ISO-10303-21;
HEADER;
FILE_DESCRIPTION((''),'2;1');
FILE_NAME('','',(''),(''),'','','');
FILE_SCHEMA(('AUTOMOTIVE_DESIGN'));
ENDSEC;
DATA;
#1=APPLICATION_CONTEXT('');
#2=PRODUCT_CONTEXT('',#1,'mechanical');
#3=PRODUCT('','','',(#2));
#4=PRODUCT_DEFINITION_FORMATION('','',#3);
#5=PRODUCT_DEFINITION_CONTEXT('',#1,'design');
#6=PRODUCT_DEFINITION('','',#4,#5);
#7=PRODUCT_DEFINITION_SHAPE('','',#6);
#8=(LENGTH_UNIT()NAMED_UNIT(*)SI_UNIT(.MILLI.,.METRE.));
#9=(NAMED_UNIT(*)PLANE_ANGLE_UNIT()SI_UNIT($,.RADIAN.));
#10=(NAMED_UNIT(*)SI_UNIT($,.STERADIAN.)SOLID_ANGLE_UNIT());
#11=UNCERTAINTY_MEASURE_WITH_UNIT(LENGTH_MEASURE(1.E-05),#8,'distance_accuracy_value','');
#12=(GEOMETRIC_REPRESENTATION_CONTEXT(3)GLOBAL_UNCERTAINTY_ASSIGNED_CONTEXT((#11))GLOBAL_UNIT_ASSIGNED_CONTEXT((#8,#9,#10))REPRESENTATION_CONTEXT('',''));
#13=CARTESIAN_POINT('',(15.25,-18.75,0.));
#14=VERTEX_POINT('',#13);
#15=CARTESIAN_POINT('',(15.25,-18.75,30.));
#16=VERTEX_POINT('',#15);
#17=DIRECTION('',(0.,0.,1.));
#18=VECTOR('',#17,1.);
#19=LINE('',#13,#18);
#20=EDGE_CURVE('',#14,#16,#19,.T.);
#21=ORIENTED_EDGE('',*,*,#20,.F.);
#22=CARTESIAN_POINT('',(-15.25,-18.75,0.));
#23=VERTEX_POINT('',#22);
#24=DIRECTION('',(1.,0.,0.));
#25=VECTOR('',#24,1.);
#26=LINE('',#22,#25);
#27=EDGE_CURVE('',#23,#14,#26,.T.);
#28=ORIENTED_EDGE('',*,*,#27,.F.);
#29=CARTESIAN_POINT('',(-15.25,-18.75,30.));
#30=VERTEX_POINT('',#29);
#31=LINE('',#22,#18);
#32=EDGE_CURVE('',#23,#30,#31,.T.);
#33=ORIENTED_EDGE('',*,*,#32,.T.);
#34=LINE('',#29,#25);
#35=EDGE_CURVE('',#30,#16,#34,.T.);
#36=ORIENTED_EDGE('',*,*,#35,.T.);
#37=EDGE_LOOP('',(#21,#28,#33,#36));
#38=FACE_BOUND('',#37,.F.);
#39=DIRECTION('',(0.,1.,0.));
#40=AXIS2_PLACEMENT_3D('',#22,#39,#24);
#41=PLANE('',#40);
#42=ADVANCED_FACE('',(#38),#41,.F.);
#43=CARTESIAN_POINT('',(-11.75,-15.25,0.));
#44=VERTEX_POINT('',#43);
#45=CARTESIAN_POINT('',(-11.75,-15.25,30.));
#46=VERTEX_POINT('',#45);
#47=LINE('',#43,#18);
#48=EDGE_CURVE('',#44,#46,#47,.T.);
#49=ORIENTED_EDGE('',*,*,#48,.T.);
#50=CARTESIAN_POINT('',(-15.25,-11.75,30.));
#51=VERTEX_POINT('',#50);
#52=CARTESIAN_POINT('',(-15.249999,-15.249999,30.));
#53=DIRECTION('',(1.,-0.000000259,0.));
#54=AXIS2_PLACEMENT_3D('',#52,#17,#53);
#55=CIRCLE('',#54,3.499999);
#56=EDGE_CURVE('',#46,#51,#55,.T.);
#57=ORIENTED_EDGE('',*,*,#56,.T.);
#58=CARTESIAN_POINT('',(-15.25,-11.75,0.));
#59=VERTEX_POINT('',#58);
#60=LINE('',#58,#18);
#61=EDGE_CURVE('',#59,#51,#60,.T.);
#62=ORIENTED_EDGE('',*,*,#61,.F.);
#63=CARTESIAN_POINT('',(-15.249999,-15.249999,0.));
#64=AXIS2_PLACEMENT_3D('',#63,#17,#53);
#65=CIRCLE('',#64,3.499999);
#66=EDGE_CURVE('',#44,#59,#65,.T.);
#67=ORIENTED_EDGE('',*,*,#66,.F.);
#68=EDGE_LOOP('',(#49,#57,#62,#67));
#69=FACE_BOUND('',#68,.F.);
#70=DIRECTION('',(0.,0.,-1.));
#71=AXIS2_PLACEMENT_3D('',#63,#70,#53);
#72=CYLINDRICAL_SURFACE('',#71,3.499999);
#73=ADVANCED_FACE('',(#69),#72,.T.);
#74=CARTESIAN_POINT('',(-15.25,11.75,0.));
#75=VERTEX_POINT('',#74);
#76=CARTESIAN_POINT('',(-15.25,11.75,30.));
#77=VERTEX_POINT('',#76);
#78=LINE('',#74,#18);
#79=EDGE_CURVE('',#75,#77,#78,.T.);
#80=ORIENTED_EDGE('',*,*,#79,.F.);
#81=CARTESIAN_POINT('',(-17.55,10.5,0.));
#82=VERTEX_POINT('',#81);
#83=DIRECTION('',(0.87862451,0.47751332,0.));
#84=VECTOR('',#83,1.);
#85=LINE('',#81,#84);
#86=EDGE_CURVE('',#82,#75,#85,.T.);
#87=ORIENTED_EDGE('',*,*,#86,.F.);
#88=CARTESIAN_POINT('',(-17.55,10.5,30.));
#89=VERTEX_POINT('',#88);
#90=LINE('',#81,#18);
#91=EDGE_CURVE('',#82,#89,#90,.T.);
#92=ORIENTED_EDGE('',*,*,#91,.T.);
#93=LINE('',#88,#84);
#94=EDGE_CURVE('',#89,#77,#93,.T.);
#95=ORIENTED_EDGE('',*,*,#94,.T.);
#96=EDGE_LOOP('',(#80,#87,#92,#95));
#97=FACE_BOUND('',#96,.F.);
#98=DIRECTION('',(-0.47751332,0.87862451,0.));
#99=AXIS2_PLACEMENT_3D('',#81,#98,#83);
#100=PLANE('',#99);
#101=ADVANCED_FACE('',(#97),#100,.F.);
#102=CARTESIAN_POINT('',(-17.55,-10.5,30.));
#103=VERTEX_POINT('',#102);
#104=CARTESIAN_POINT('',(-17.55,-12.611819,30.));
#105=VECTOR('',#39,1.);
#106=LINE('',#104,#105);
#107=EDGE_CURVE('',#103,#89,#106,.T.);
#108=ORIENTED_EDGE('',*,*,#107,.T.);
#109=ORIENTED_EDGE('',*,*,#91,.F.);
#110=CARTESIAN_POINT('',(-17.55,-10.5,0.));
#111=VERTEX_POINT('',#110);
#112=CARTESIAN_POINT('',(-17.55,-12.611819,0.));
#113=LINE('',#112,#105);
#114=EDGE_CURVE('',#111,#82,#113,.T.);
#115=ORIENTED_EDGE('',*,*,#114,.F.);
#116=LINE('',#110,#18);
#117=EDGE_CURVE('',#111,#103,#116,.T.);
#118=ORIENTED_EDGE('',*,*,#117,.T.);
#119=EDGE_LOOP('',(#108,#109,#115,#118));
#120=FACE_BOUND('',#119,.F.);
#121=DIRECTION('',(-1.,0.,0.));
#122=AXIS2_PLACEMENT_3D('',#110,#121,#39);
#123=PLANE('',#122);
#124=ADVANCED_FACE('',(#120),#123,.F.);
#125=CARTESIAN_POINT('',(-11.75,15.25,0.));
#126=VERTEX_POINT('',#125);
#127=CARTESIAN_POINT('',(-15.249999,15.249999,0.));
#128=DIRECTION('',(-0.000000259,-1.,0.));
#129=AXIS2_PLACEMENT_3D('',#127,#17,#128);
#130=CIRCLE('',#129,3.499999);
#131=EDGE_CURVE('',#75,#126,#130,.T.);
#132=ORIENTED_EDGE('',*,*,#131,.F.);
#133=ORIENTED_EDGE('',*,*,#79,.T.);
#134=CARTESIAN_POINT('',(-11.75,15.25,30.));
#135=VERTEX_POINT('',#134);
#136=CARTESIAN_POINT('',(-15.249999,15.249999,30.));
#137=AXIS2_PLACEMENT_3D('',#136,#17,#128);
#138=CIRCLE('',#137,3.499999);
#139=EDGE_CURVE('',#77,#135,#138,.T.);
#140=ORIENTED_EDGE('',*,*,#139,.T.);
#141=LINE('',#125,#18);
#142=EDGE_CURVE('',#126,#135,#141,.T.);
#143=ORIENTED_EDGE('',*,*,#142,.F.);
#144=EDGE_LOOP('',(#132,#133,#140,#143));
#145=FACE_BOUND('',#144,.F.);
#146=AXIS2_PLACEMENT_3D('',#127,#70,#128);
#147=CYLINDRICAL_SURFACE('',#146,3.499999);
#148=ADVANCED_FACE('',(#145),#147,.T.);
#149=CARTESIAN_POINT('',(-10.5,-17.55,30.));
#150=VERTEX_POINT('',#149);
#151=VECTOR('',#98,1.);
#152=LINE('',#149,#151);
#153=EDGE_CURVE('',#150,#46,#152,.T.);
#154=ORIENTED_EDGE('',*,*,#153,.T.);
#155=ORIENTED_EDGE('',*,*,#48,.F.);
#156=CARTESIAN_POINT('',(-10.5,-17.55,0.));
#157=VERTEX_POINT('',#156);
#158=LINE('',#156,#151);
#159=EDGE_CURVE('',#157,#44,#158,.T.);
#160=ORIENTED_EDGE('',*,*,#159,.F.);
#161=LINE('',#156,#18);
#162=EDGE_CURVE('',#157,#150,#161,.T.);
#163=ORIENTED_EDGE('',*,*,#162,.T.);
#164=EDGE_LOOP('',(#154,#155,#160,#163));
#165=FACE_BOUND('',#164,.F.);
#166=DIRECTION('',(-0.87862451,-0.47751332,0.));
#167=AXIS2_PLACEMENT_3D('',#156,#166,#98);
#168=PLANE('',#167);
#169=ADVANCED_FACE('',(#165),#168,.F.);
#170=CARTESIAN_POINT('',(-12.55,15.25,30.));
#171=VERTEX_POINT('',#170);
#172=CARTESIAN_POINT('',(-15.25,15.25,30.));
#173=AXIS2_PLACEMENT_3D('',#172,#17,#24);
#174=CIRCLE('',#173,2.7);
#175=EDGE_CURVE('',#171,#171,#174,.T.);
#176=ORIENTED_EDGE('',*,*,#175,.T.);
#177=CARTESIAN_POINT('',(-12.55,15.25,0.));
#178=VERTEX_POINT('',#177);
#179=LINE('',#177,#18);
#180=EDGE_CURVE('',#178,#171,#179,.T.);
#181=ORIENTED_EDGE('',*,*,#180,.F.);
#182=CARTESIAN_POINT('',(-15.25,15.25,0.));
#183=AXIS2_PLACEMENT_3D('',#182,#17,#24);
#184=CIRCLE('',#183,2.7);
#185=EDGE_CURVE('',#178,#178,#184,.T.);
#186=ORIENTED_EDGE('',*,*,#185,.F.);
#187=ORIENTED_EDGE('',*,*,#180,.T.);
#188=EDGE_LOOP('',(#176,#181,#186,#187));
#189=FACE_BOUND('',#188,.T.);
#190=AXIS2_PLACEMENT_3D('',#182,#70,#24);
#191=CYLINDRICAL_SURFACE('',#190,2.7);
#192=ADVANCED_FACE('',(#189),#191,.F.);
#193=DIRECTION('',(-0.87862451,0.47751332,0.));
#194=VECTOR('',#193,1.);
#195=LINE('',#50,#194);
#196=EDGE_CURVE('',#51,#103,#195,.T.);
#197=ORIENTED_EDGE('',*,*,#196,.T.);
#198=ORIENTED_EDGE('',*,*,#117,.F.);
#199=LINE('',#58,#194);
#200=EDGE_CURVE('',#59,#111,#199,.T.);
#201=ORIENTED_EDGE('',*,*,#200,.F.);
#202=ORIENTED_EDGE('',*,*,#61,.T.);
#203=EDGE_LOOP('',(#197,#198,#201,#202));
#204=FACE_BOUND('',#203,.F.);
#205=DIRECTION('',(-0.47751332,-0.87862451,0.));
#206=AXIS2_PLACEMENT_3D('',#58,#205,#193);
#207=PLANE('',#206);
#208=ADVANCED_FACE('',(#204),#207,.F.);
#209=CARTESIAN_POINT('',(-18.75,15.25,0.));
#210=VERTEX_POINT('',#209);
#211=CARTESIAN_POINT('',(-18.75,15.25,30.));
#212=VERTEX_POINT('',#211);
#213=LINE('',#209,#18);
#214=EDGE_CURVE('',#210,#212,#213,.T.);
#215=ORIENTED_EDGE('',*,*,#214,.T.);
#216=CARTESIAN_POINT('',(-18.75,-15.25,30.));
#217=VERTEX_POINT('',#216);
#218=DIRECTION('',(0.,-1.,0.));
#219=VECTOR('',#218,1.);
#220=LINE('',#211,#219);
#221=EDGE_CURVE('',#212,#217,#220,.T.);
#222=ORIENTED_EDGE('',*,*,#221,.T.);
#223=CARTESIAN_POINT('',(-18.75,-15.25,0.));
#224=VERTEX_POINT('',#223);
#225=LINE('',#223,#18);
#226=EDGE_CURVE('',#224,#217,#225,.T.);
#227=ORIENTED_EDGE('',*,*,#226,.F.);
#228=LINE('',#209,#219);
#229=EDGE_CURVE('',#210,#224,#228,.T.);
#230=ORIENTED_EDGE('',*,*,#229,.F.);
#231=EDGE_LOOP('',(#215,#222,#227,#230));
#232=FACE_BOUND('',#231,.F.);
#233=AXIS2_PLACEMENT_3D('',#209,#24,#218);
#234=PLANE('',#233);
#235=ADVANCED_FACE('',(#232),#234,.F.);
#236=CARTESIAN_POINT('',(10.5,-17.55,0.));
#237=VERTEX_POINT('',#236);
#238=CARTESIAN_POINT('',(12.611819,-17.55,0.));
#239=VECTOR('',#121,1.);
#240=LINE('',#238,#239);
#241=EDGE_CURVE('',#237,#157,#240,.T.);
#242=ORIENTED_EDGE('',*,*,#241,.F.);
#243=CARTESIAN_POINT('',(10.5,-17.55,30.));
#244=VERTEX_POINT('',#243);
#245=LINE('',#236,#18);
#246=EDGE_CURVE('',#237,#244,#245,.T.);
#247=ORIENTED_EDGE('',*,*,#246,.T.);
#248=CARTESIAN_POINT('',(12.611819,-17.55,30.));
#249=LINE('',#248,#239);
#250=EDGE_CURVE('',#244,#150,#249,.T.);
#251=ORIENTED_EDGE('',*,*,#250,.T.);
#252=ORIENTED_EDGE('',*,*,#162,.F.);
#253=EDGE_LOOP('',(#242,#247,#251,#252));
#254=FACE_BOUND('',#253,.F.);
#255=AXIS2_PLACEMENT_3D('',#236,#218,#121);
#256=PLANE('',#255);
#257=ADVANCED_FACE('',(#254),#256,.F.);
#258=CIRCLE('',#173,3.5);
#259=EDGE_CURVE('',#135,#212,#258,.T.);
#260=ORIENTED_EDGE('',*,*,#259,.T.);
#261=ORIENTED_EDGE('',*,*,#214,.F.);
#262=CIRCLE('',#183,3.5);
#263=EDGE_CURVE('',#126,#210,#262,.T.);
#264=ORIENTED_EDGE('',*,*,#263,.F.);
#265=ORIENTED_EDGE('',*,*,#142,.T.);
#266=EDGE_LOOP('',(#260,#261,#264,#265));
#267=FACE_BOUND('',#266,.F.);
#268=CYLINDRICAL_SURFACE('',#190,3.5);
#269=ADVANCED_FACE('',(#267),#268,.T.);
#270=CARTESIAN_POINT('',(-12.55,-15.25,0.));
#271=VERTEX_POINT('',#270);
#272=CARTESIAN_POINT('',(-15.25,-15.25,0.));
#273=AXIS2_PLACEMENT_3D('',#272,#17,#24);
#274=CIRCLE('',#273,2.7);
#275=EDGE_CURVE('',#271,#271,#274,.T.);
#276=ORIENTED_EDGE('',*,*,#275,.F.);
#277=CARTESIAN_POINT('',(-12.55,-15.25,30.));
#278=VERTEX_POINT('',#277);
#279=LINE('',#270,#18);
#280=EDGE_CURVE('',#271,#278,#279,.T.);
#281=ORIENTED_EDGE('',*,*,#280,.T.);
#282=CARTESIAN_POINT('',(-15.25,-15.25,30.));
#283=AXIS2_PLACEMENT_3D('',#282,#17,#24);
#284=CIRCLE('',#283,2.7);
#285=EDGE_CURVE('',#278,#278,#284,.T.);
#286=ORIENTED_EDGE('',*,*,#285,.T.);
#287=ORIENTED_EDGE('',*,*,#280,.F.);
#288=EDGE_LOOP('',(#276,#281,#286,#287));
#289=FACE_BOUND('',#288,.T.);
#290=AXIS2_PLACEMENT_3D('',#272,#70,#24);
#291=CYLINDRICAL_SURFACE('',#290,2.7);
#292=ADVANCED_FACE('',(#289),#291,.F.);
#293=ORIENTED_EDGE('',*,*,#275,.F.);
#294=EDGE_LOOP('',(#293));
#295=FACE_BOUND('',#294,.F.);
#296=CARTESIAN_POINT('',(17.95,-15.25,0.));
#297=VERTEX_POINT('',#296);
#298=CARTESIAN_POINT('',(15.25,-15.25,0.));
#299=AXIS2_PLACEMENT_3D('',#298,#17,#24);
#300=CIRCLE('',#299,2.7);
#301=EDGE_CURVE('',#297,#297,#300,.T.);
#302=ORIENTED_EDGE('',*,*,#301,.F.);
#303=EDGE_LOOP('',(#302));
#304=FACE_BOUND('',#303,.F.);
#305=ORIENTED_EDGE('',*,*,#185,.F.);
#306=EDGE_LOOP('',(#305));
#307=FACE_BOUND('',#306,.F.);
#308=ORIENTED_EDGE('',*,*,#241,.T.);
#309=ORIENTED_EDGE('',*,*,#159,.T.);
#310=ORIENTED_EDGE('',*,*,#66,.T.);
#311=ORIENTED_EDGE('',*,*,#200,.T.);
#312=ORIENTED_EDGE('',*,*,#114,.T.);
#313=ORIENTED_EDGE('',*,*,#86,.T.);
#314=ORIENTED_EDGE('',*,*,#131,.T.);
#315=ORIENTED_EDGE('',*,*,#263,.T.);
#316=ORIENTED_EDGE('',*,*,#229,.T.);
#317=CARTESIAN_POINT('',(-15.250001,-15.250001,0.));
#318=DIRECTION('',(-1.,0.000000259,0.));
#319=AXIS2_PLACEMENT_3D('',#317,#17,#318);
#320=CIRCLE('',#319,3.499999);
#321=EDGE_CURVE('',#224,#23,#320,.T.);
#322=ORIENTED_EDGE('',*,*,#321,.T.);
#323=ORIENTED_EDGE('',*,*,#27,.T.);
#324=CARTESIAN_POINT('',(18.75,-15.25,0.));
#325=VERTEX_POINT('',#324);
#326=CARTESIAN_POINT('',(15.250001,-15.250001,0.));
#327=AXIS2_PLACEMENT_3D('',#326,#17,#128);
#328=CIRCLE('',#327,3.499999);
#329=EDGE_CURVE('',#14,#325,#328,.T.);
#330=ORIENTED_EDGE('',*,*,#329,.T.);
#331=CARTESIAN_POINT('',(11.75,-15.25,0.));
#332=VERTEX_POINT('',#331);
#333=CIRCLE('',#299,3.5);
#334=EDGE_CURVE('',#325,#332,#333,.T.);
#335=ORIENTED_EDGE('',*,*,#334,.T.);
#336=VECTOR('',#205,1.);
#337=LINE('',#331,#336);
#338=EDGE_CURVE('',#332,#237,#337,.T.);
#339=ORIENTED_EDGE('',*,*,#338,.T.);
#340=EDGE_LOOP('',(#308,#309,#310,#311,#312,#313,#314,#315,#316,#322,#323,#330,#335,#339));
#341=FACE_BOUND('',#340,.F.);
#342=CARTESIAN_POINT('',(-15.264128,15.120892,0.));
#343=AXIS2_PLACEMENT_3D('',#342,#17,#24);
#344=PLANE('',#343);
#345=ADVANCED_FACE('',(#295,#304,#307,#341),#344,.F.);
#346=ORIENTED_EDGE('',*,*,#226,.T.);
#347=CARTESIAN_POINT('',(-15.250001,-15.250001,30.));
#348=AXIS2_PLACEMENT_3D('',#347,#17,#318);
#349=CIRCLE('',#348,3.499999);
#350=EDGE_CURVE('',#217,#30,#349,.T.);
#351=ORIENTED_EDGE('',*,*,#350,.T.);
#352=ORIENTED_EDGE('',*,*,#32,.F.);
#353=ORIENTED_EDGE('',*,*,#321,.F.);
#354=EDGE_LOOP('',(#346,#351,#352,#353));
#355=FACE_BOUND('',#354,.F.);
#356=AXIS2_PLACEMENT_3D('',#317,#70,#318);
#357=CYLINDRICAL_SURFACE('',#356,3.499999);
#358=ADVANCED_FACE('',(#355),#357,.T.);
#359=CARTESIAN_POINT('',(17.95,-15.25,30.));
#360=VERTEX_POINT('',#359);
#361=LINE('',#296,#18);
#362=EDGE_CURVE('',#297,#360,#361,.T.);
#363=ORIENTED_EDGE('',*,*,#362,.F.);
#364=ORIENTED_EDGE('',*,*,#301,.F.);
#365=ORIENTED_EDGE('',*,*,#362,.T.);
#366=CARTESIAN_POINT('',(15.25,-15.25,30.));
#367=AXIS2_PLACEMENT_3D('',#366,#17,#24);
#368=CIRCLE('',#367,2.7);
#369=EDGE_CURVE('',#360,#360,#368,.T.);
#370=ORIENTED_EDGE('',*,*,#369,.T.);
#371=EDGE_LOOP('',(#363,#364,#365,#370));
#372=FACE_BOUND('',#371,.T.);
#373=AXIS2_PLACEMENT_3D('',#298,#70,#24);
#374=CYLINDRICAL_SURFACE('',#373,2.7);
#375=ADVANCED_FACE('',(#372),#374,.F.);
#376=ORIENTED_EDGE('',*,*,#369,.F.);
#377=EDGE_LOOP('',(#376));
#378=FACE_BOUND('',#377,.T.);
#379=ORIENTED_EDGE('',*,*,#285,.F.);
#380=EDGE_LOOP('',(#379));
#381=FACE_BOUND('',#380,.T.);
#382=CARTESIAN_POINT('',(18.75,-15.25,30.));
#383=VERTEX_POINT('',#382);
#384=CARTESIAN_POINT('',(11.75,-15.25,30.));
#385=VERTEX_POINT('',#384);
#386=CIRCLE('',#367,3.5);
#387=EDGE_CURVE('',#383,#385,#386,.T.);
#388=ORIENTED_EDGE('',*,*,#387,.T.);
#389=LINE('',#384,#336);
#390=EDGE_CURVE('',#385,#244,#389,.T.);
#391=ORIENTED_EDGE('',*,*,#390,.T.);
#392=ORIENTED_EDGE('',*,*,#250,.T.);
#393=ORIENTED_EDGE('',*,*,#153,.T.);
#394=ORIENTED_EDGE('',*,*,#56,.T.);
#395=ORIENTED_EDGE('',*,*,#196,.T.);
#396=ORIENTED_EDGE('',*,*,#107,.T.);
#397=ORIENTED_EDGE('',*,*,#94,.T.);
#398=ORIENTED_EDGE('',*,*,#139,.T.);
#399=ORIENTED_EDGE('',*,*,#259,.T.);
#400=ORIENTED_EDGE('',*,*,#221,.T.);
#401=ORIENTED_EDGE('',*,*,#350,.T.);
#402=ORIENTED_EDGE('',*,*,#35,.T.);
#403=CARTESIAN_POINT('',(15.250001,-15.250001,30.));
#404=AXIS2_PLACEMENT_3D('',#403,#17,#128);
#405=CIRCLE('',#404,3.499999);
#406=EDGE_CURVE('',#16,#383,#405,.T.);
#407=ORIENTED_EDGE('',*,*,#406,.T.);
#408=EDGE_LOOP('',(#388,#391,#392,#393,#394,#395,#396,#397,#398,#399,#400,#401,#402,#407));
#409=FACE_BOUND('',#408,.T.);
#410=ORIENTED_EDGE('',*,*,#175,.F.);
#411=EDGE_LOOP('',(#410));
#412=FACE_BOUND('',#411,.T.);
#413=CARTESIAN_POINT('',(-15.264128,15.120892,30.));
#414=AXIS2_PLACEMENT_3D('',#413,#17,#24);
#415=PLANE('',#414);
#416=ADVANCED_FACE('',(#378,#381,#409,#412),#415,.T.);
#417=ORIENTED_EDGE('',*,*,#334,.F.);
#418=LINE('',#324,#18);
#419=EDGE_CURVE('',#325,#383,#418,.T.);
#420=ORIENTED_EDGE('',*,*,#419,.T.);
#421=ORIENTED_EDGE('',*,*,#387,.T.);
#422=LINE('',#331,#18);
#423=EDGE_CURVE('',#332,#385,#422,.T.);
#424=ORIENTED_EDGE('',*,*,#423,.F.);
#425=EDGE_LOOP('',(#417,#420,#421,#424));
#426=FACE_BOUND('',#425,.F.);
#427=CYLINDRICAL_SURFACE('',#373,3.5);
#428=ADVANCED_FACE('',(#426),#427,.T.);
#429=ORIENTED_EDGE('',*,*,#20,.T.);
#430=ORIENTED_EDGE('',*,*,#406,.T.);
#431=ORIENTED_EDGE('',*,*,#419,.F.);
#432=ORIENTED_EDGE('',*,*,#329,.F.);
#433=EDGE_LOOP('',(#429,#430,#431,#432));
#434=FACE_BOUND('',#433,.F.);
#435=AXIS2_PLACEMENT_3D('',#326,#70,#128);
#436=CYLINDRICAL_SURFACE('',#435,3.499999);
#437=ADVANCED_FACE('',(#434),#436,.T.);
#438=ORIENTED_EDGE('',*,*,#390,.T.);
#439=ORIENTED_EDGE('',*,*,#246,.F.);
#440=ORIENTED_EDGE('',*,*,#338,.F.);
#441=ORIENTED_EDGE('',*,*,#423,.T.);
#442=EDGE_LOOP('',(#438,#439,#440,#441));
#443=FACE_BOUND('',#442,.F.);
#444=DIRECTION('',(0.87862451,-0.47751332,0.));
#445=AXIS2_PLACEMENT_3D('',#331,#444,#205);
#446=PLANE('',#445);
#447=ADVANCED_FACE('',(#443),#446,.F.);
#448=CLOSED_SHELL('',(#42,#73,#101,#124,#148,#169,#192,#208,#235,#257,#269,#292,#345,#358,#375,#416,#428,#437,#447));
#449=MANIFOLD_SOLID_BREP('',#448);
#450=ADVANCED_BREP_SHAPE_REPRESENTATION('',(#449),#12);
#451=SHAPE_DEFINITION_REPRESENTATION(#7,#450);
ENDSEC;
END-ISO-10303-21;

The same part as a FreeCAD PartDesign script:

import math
import FreeCAD as App
import Part
import Sketcher

V = App.Vector

doc = App.newDocument("Part")
body = doc.addObject("PartDesign::Body", "Body")

# Sketch on XY plane
sketch1 = body.newObject("Sketcher::SketchObject", "Sketch")
sketch1.AttachmentSupport = (doc.getObject("XY_Plane"), [""])
sketch1.MapMode = "FlatFace"
sketch1.addGeometry([
    Part.ArcOfCircle(Part.Circle(V(-15.2, 15.2, 0), V(0, 0, 1), 3.5), math.radians(-90), math.radians(0)),  # 0
    Part.ArcOfCircle(Part.Circle(V(-15.2, 15.2, 0), V(0, 0, 1), 3.5), math.radians(0), math.radians(180)),  # 1
    Part.LineSegment(V(-18.8, 15.2, 0), V(-18.8, -15.2, 0)),  # 2
    Part.ArcOfCircle(Part.Circle(V(-15.3, -15.3, 0), V(0, 0, 1), 3.5), math.radians(180), math.radians(270)),  # 3
    Part.LineSegment(V(-15.2, -18.8, 0), V(15.2, -18.8, 0)),  # 4
    Part.ArcOfCircle(Part.Circle(V(15.3, -15.3, 0), V(0, 0, 1), 3.5), math.radians(-90), math.radians(0)),  # 5
    Part.ArcOfCircle(Part.Circle(V(15.2, -15.2, 0), V(0, 0, 1), 3.5), math.radians(0), math.radians(180)),  # 6
    Part.LineSegment(V(11.8, -15.2, 0), V(10.5, -17.6, 0)),  # 7
    Part.LineSegment(V(10.5, -17.6, 0), V(-10.5, -17.6, 0)),  # 8
    Part.LineSegment(V(-10.5, -17.6, 0), V(-11.8, -15.2, 0)),  # 9
    Part.ArcOfCircle(Part.Circle(V(-15.2, -15.2, 0), V(0, 0, 1), 3.5), math.radians(0), math.radians(90)),  # 10
    Part.LineSegment(V(-15.2, -11.8, 0), V(-17.6, -10.5, 0)),  # 11
    Part.LineSegment(V(-17.6, -10.5, 0), V(-17.6, 10.5, 0)),  # 12
    Part.LineSegment(V(-17.6, 10.5, 0), V(-15.2, 11.8, 0)),  # 13
    Part.Circle(V(-15.2, -15.2, 0), V(0, 0, 1), 2.7),  # 14
    Part.Circle(V(15.2, -15.2, 0), V(0, 0, 1), 2.7),  # 15
    Part.Circle(V(-15.2, 15.2, 0), V(0, 0, 1), 2.7),  # 16
], False)
sketch1.addConstraint([
    Sketcher.Constraint("Tangent", 0, 2, 1, 1),
    Sketcher.Constraint("Tangent", 1, 2, 2, 1),
    Sketcher.Constraint("Tangent", 2, 2, 3, 1),
    Sketcher.Constraint("Tangent", 3, 2, 4, 1),
    Sketcher.Constraint("Tangent", 4, 2, 5, 1),
    Sketcher.Constraint("Tangent", 5, 2, 6, 1),
    Sketcher.Constraint("Coincident", 6, 2, 7, 1),
    Sketcher.Constraint("Coincident", 7, 2, 8, 1),
    Sketcher.Constraint("Coincident", 8, 2, 9, 1),
    Sketcher.Constraint("Coincident", 9, 2, 10, 1),
    Sketcher.Constraint("Coincident", 10, 2, 11, 1),
    Sketcher.Constraint("Coincident", 11, 2, 12, 1),
    Sketcher.Constraint("Coincident", 12, 2, 13, 1),
    Sketcher.Constraint("Coincident", 13, 2, 0, 1),
    Sketcher.Constraint("Vertical", 2),
    Sketcher.Constraint("Horizontal", 4),
    Sketcher.Constraint("Horizontal", 8),
    Sketcher.Constraint("Vertical", 12),
    Sketcher.Constraint("Coincident", 10, 3, 3, 3),
    Sketcher.Constraint("Coincident", 14, 3, 3, 3),
    Sketcher.Constraint("Coincident", 15, 3, 5, 3),
    Sketcher.Constraint("Coincident", 16, 3, 0, 3),
    Sketcher.Constraint("Equal", 0, 1),
    Sketcher.Constraint("Equal", 1, 3),
    Sketcher.Constraint("Equal", 3, 5),
    Sketcher.Constraint("Equal", 5, 6),
    Sketcher.Constraint("Equal", 6, 10),
    Sketcher.Constraint("Equal", 14, 15),
    Sketcher.Constraint("Equal", 15, 16),
    Sketcher.Constraint("Symmetric", 0, 3, 5, 3, -1, 1),
    Sketcher.Constraint("Perpendicular", 7, 11),
    Sketcher.Constraint("Perpendicular", 9, 13),
    Sketcher.Constraint("Horizontal", 16, 3, 0, 2),
    Sketcher.Constraint("Horizontal", 2, 2, 5, 2),
    Sketcher.Constraint("Horizontal", 5, 2, 6, 2),
    Sketcher.Constraint("Horizontal", 6, 2, 9, 2),
    Sketcher.Constraint("Vertical", 3, 2, 10, 2),
    Sketcher.Constraint("Vertical", 10, 2, 13, 2),
    Sketcher.Constraint("Equal", 4, 2),
    Sketcher.Constraint("Equal", 8, 12),
    Sketcher.Constraint("Equal", 7, 9),
    Sketcher.Constraint("Diameter", 14, 5.4),
    Sketcher.Constraint("Radius", 0, 3.499999),
    Sketcher.Constraint("DistanceX", 8, 2, 8, 1, 21.0),
    Sketcher.Constraint("DistanceX", 4, 1, 4, 2, 30.5),
    Sketcher.Constraint("DistanceY", 7, 2, 6, 2, 2.3),
])
pad1 = body.newObject("PartDesign::Pad", "Pad")
pad1.Profile = sketch1
pad1.Length = 30

doc.recompute()
